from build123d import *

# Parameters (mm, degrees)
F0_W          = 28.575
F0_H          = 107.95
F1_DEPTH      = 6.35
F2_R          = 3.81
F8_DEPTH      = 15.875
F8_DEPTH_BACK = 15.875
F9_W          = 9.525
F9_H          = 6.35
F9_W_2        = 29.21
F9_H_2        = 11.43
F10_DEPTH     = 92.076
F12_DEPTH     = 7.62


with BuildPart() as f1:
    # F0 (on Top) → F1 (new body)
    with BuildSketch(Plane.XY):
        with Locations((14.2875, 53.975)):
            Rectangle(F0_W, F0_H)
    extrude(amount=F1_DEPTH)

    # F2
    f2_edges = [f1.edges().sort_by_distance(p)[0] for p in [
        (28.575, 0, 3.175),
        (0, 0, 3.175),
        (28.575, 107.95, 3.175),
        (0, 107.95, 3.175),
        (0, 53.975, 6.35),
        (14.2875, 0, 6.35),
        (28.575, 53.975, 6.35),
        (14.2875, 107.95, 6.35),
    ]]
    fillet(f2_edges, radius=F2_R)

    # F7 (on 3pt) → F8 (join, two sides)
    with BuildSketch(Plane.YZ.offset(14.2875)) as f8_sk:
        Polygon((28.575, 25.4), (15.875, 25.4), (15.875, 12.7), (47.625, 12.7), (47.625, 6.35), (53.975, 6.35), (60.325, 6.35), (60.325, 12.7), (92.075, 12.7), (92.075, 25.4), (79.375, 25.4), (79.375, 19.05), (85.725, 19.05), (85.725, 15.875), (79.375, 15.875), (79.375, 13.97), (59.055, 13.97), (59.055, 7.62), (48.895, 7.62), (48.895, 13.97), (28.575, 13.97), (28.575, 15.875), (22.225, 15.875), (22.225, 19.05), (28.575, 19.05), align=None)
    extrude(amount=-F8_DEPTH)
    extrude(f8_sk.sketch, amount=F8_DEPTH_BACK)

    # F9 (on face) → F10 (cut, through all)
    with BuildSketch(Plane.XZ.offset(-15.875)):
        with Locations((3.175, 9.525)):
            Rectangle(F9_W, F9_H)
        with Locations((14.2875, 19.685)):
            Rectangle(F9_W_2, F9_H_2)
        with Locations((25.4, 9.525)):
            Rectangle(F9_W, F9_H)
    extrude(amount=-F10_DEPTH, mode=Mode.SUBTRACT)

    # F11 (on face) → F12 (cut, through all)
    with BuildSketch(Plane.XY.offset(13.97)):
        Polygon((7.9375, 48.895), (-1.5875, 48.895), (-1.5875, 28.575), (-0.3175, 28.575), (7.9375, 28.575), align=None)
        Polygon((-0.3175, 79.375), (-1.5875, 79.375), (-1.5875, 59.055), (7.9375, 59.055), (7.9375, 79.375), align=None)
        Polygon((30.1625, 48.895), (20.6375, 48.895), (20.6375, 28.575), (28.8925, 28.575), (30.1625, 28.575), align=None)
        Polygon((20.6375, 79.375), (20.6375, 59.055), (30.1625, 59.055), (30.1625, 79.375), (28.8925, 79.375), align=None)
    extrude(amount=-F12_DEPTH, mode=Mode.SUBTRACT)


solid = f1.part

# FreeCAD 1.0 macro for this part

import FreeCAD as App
import Part
import Sketcher
Q = App.Units.Quantity


def edges_at(feature, points):
    """Names of the edges that pass closest to the given points."""
    edges = feature.Shape.Edges
    near = lambda p: min(range(len(edges)), key=lambda i: edges[i].distToShape(Part.Vertex(*p))[0])
    return sorted({f"Edge{near(p) + 1}" for p in points})


def add_polygon(sketch, points):
    """Adds a closed chain of lines whose ends are joined by coincident constraints."""
    first, n = sketch.GeometryCount, len(points)
    for a, b in zip(points, points[1:] + points[:1]):
        sketch.addGeometry(Part.LineSegment(App.Vector(*a, 0), App.Vector(*b, 0)), False)
    for i in range(n):
        sketch.addConstraint(Sketcher.Constraint("Coincident", first + i, 2, first + (i + 1) % n, 1))

doc = App.newDocument("Part")
body = doc.addObject("PartDesign::Body", "Body")

# Sketch on XY plane
sketch1 = body.newObject("Sketcher::SketchObject", "Sketch")
sketch1.AttachmentSupport = (doc.getObject("XY_Plane"), [""])
sketch1.MapMode = "FlatFace"
add_polygon(sketch1, [(0, 108), (0, 0), (29, 0), (29, 108)])  # lines 0-3
sketch1.addConstraint([
    Sketcher.Constraint("Vertical", 0),
    Sketcher.Constraint("Horizontal", 1),
    Sketcher.Constraint("Vertical", 2),
    Sketcher.Constraint("Horizontal", 3),
    Sketcher.Constraint("Coincident", 0, 2, -1, 1),
    Sketcher.Constraint("DistanceY", 0, 2, 0, 1, Q("4.25 in")),
    Sketcher.Constraint("DistanceX", 1, 1, 1, 2, Q("1.125 in")),
])
pad1 = body.newObject("PartDesign::Pad", "Pad")
pad1.Profile = sketch1
pad1.Length = Q("0.25 in")
doc.recompute()

fillet = body.newObject("PartDesign::Fillet", "Fillet")
fillet.Base = (pad1, edges_at(pad1, [
    (28.575, 0, 3.175),
    (0, 0, 3.175),
    (28.575, 107.95, 3.175),
    (0, 107.95, 3.175),
    (0, 53.975, 6.35),
    (14.287, 0, 6.35),
    (28.575, 53.975, 6.35),
    (14.287, 107.95, 6.35),
]))
fillet.Radius = Q("0.15 in")

# Sketch on YZ plane
sketch2 = body.newObject("Sketcher::SketchObject", "Sketch001")
sketch2.AttachmentSupport = (doc.getObject("YZ_Plane"), [""])
sketch2.MapMode = "FlatFace"
sketch2.AttachmentOffset = App.Placement(App.Vector(0, 0, 0.5625 * 25.4), App.Rotation())
add_polygon(sketch2, [(28.6, 25.4), (15.9, 25.4), (15.9, 12.7), (47.6, 12.7), (47.6, 6.3), (60.3, 6.3), (60.3, 12.7), (92.1, 12.7), (92.1, 25.4), (79.4, 25.4), (79.4, 19.1), (85.7, 19.1), (85.7, 15.9), (79.4, 15.9), (79.4, 14), (59.1, 14), (59.1, 7.6), (48.9, 7.6), (48.9, 14), (28.6, 14), (28.6, 15.9), (22.2, 15.9), (22.2, 19.1), (28.6, 19.1)])  # lines 0-23
sketch2.addConstraint([
    Sketcher.Constraint("Horizontal", 0),
    Sketcher.Constraint("Vertical", 1),
    Sketcher.Constraint("Horizontal", 2),
    Sketcher.Constraint("Vertical", 3),
    Sketcher.Constraint("Horizontal", 4),
    Sketcher.Constraint("Vertical", 5),
    Sketcher.Constraint("Horizontal", 6),
    Sketcher.Constraint("Vertical", 7),
    Sketcher.Constraint("Horizontal", 8),
    Sketcher.Constraint("Vertical", 9),
    Sketcher.Constraint("Horizontal", 10),
    Sketcher.Constraint("Vertical", 11),
    Sketcher.Constraint("Horizontal", 12),
    Sketcher.Constraint("Vertical", 13),
    Sketcher.Constraint("Horizontal", 14),
    Sketcher.Constraint("Vertical", 15),
    Sketcher.Constraint("Horizontal", 16),
    Sketcher.Constraint("Vertical", 17),
    Sketcher.Constraint("Horizontal", 18),
    Sketcher.Constraint("Vertical", 19),
    Sketcher.Constraint("Horizontal", 20),
    Sketcher.Constraint("Vertical", 21),
    Sketcher.Constraint("Horizontal", 22),
    Sketcher.Constraint("Vertical", 23),
    Sketcher.Constraint("Horizontal", 2, 2, 5, 2),
    Sketcher.Constraint("Horizontal", 0, 2, 7, 2),
    Sketcher.Constraint("Horizontal", 14, 2, 17, 2),
    Sketcher.Constraint("Horizontal", 12, 2, 19, 2),
    Sketcher.Constraint("Horizontal", 10, 2, 21, 2),
    Sketcher.Constraint("Vertical", 9, 2, 12, 2),
    Sketcher.Constraint("Vertical", 19, 2, 22, 2),
    Sketcher.Constraint("Equal", 0, 4),
    Sketcher.Constraint("Equal", 2, 6),
    Sketcher.Constraint("Equal", 4, 8),
    Sketcher.Constraint("Equal", 14, 18),
    Sketcher.Constraint("Equal", 12, 20),
    Sketcher.Constraint("Equal", 8, 1),
    Sketcher.Constraint("Equal", 22, 3),
    Sketcher.Constraint("Equal", 5, 9),
    Sketcher.Constraint("Equal", 9, 15),
    Sketcher.Constraint("DistanceX", 0, 2, 0, 1, Q("0.5 in")),
    Sketcher.Constraint("DistanceX", 14, 2, 14, 1, Q("0.8 in")),
    Sketcher.Constraint("DistanceX", 16, 2, 16, 1, Q("0.4 in")),
    Sketcher.Constraint("DistanceY", -1, 1, 0, 2, Q("1 in")),
    Sketcher.Constraint("DistanceX", 5, 2, 10, 2, Q("1 in")),
    Sketcher.Constraint("DistanceY", -1, 1, 15, 2, Q("0.3 in")),
    Sketcher.Constraint("DistanceY", 11, 2, 11, 1, Q("0.125 in")),
    Sketcher.Constraint("DistanceX", -1, 1, 0, 2, Q("0.625 in")),
])
pad2 = body.newObject("PartDesign::Pad", "Pad001")
pad2.Profile = sketch2
pad2.Type = "TwoLengths"
pad2.Length = Q("0.625 in")
pad2.Length2 = Q("0.625 in")
pad2.Reversed = True

# Sketch on XZ plane
sketch3 = body.newObject("Sketcher::SketchObject", "Sketch002")
sketch3.AttachmentSupport = (doc.getObject("XZ_Plane"), [""])
sketch3.MapMode = "FlatFace"
sketch3.AttachmentOffset = App.Placement(App.Vector(0, 0, -0.625 * 25.4), App.Rotation())
add_polygon(sketch3, [(-2, 13), (-2, 6), (8, 6), (8, 13)])  # lines 0-3
add_polygon(sketch3, [(0, 25), (0, 14), (29, 14), (29, 25)])  # lines 4-7
add_polygon(sketch3, [(21, 13), (21, 6), (30, 6), (30, 13)])  # lines 8-11
sketch3.addConstraint([
    Sketcher.Constraint("Vertical", 0),
    Sketcher.Constraint("Horizontal", 1),
    Sketcher.Constraint("Vertical", 2),
    Sketcher.Constraint("Horizontal", 3),
    Sketcher.Constraint("Vertical", 4),
    Sketcher.Constraint("Horizontal", 5),
    Sketcher.Constraint("Vertical", 6),
    Sketcher.Constraint("Horizontal", 7),
    Sketcher.Constraint("Vertical", 8),
    Sketcher.Constraint("Horizontal", 9),
    Sketcher.Constraint("Vertical", 10),
    Sketcher.Constraint("Horizontal", 11),
    Sketcher.Constraint("Horizontal", 1, 2, 8, 2),
    Sketcher.Constraint("Horizontal", 3, 2, 10, 2),
    Sketcher.Constraint("Equal", 3, 9),
    Sketcher.Constraint("DistanceY", -1, 1, 6, 2, Q("1 in")),
    Sketcher.Constraint("DistanceX", 5, 1, 5, 2, Q("1.15 in")),
    Sketcher.Constraint("DistanceY", 0, 2, 0, 1, Q("0.25 in")),
    Sketcher.Constraint("DistanceY", 4, 2, 4, 1, Q("0.45 in")),
    Sketcher.Constraint("DistanceY", -1, 1, 2, 2, Q("0.5 in")),
    Sketcher.Constraint("DistanceX", 3, 2, 5, 2, Q("1.2 in")),
    Sketcher.Constraint("DistanceX", 1, 2, 8, 2, Q("0.5 in")),
    Sketcher.Constraint("DistanceX", 1, 1, 1, 2, Q("0.375 in")),
    Sketcher.Constraint("DistanceX", 0, 2, -1, 1, Q("0.0625 in")),
])
pocket1 = body.newObject("PartDesign::Pocket", "Pocket")
pocket1.Profile = sketch3
pocket1.Type = "ThroughAll"

# Sketch on XY plane
sketch4 = body.newObject("Sketcher::SketchObject", "Sketch003")
sketch4.AttachmentSupport = (doc.getObject("XY_Plane"), [""])
sketch4.MapMode = "FlatFace"
sketch4.AttachmentOffset = App.Placement(App.Vector(0, 0, 0.55 * 25.4), App.Rotation())
add_polygon(sketch4, [(8, 49), (-2, 49), (-2, 29), (8, 29)])  # lines 0-3
add_polygon(sketch4, [(-2, 79), (-2, 59), (8, 59), (8, 79)])  # lines 4-7
add_polygon(sketch4, [(30, 49), (21, 49), (21, 29), (30, 29)])  # lines 8-11
add_polygon(sketch4, [(21, 79), (21, 59), (30, 59), (30, 79)])  # lines 12-15
sketch4.addConstraint([
    Sketcher.Constraint("Horizontal", 0),
    Sketcher.Constraint("Vertical", 1),
    Sketcher.Constraint("Horizontal", 2),
    Sketcher.Constraint("Vertical", 3),
    Sketcher.Constraint("Vertical", 4),
    Sketcher.Constraint("Horizontal", 5),
    Sketcher.Constraint("Vertical", 6),
    Sketcher.Constraint("Horizontal", 7),
    Sketcher.Constraint("Horizontal", 8),
    Sketcher.Constraint("Vertical", 9),
    Sketcher.Constraint("Horizontal", 10),
    Sketcher.Constraint("Vertical", 11),
    Sketcher.Constraint("Vertical", 12),
    Sketcher.Constraint("Horizontal", 13),
    Sketcher.Constraint("Vertical", 14),
    Sketcher.Constraint("Horizontal", 15),
    Sketcher.Constraint("Horizontal", 3, 2, 8, 2),
    Sketcher.Constraint("Horizontal", 2, 2, 9, 2),
    Sketcher.Constraint("Horizontal", 5, 2, 12, 2),
    Sketcher.Constraint("Horizontal", 7, 2, 14, 2),
    Sketcher.Constraint("Vertical", 1, 2, 4, 2),
    Sketcher.Constraint("Vertical", 3, 2, 5, 2),
    Sketcher.Constraint("Vertical", 9, 2, 12, 2),
    Sketcher.Constraint("Vertical", 11, 2, 13, 2),
    Sketcher.Constraint("Equal", 7, 8),
    Sketcher.Constraint("Equal", 3, 4),
    Sketcher.Constraint("DistanceY", 1, 2, 1, 1, Q("0.8 in")),
    Sketcher.Constraint("DistanceY", 2, 2, 6, 2, Q("2 in")),
    Sketcher.Constraint("DistanceX", 3, 2, 8, 2, Q("0.5 in")),
    Sketcher.Constraint("DistanceX", 0, 2, 0, 1, Q("0.375 in")),
    Sketcher.Constraint("DistanceX", 0, 2, -1, 1, Q("0.0625 in")),
    Sketcher.Constraint("DistanceY", -1, 1, 0, 2, Q("1.925 in")),
])
pocket2 = body.newObject("PartDesign::Pocket", "Pocket001")
pocket2.Profile = sketch4
pocket2.Length = Q("0.3 in")

doc.recompute()
